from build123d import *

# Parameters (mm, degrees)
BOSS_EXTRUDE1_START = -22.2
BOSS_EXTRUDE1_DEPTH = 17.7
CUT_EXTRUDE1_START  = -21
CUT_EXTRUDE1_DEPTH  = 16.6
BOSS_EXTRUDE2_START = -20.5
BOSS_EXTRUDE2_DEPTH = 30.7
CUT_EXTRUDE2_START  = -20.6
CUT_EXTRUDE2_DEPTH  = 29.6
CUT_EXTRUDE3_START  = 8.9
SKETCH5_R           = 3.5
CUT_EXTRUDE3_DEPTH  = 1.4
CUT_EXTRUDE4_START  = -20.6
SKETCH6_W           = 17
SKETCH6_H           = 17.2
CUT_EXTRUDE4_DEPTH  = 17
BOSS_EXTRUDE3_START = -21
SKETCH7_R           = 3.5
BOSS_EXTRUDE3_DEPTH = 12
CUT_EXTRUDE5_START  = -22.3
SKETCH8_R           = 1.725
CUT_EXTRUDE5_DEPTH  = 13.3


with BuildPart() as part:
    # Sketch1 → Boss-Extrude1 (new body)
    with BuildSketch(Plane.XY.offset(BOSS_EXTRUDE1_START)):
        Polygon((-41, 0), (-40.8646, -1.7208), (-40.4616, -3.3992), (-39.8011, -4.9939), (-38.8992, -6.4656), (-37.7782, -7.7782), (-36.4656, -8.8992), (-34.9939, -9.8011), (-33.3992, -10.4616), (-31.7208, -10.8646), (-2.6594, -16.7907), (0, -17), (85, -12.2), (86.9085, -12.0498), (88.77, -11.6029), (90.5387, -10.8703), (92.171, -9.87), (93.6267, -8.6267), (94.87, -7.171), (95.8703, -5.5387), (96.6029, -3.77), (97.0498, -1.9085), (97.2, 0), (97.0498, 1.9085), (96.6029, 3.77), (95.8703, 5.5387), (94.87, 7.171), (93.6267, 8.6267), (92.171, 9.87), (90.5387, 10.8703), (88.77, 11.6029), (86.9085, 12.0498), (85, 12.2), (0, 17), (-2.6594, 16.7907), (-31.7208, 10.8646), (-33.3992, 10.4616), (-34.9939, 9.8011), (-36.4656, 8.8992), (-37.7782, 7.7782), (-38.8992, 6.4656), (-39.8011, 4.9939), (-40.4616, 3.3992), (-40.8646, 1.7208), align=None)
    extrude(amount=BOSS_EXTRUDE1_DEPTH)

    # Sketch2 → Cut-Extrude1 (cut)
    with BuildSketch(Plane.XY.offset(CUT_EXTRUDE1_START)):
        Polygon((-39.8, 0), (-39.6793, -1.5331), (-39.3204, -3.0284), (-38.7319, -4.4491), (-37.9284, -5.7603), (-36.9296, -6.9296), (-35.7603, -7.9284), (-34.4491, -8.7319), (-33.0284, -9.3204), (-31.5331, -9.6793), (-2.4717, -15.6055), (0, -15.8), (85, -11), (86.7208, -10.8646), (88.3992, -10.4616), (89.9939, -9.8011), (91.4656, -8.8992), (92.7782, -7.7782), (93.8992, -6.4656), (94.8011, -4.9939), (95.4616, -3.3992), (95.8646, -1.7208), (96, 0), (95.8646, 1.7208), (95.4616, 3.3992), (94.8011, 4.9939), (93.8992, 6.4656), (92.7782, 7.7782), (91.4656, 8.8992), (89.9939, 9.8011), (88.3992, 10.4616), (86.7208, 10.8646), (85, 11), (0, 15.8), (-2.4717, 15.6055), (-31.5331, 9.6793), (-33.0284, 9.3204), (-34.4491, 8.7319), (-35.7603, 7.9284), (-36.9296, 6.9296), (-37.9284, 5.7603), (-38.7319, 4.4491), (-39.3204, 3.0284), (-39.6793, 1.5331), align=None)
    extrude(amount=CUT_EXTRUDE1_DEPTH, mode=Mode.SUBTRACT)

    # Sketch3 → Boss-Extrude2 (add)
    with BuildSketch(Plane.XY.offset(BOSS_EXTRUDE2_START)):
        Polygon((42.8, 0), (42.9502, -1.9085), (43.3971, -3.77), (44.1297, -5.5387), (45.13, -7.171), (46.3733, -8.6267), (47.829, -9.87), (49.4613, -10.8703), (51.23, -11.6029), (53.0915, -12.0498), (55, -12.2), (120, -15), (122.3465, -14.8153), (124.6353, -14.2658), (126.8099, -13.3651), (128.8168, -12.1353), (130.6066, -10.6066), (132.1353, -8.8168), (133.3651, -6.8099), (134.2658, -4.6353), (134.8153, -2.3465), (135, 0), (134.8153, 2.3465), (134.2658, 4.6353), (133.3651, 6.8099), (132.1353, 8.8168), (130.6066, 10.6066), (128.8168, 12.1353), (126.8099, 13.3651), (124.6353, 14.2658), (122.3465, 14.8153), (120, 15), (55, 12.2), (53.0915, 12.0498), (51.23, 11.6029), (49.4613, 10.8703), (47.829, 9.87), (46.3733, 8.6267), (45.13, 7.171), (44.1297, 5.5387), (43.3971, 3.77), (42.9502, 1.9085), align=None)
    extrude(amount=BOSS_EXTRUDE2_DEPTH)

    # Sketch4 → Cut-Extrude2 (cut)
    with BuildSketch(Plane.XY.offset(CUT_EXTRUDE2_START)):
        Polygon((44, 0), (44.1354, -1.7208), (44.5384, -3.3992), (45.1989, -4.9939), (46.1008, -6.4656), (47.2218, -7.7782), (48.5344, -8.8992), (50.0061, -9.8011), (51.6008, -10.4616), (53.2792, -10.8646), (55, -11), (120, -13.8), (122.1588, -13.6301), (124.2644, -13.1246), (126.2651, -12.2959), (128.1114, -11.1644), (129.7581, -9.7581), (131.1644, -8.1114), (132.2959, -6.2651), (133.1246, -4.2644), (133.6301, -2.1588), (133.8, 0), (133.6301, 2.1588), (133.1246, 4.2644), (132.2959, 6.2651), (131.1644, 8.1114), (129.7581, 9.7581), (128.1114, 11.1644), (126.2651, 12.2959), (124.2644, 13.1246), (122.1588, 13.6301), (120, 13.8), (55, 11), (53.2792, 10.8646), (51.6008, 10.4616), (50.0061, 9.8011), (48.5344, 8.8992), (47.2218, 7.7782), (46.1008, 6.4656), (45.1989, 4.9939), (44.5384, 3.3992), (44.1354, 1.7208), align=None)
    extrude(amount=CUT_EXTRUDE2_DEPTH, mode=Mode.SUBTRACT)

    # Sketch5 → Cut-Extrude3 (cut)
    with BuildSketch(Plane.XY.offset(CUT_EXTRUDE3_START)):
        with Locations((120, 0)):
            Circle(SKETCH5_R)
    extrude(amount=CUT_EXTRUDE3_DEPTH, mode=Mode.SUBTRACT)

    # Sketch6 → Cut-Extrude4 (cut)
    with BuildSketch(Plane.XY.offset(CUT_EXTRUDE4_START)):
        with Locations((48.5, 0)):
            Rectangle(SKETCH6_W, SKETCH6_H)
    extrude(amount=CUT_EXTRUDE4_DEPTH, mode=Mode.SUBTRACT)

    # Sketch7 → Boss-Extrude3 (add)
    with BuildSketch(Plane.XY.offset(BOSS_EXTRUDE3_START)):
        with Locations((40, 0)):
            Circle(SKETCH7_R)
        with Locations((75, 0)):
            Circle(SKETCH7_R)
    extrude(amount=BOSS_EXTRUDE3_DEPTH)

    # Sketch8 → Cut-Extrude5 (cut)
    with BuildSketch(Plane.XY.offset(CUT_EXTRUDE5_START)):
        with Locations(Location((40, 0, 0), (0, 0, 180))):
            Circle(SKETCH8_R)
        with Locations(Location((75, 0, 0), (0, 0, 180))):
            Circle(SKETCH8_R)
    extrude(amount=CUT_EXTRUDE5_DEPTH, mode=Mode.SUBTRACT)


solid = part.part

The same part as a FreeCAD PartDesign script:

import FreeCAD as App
import Part
import Sketcher

V = App.Vector
Q = App.Units.Quantity


def add_polygon(sketch, points):
    """Adds a closed chain of lines whose ends are joined by coincident constraints."""
    first, n = sketch.GeometryCount, len(points)
    for a, b in zip(points, points[1:] + points[:1]):
        sketch.addGeometry(Part.LineSegment(App.Vector(*a, 0), App.Vector(*b, 0)), False)
    for i in range(n):
        sketch.addConstraint(Sketcher.Constraint("Coincident", first + i, 2, first + (i + 1) % n, 1))

doc = App.newDocument("Part")
params = doc.addObject("Spreadsheet::Sheet", "Params")
for row, (alias, value) in enumerate([
    ("pad1_length", "17.7 mm"),
    ("pocket1_length", "16.6 mm"),
    ("pad2_length", "30.7 mm"),
    ("pocket2_length", "29.6 mm"),
    ("sketch5_diameter", "7 mm"),
    ("pocket3_length", "1.4 mm"),
    ("sketch6_width", "17 mm"),
    ("sketch6_height", "17.2 mm"),
    ("pocket4_length", "17 mm"),
    ("sketch7_diameter", "7 mm"),
    ("pad3_length", "12 mm"),
    ("sketch8_diameter", "3.45 mm"),
    ("pocket5_length", "13.3 mm"),
], start=1):
    params.set(f"A{row}", alias)
    params.set(f"B{row}", "=" + value)
    params.setAlias(f"B{row}", alias)

body = doc.addObject("PartDesign::Body", "Body")

sketch1 = body.newObject("Sketcher::SketchObject", "Sketch")
sketch1.AttachmentSupport = (doc.getObject("XY_Plane"), [""])
sketch1.MapMode = "FlatFace"
sketch1.AttachmentOffset = App.Placement(V(0, 0, -22.2), App.Rotation())
add_polygon(sketch1, [(-41, 0), (-40.8646, -1.7208), (-40.4616, -3.3992), (-39.8011, -4.9939), (-38.8992, -6.4656), (-37.7782, -7.7782), (-36.4656, -8.8992), (-34.9939, -9.8011), (-33.3992, -10.4616), (-31.7208, -10.8646), (-2.6594, -16.7907), (0, -17), (85, -12.2), (86.9085, -12.0498), (88.77, -11.6029), (90.5387, -10.8703), (92.171, -9.87), (93.6267, -8.6267), (94.87, -7.171), (95.8703, -5.5387), (96.6029, -3.77), (97.0498, -1.9085), (97.2, 0), (97.0498, 1.9085), (96.6029, 3.77), (95.8703, 5.5387), (94.87, 7.171), (93.6267, 8.6267), (92.171, 9.87), (90.5387, 10.8703), (88.77, 11.6029), (86.9085, 12.0498), (85, 12.2), (0, 17), (-2.6594, 16.7907), (-31.7208, 10.8646), (-33.3992, 10.4616), (-34.9939, 9.8011), (-36.4656, 8.8992), (-37.7782, 7.7782), (-38.8992, 6.4656), (-39.8011, 4.9939), (-40.4616, 3.3992), (-40.8646, 1.7208)])
sketch1.addConstraint(Sketcher.Constraint("Symmetric", 10, 2, 32, 2, -1, 1))
sketch1.addConstraint(Sketcher.Constraint("Symmetric", 20, 2, 22, 2, -1))
sketch1.addConstraint(Sketcher.Constraint("Symmetric", 19, 2, 23, 2, -1))
sketch1.addConstraint(Sketcher.Constraint("Symmetric", 18, 2, 24, 2, -1))
sketch1.addConstraint(Sketcher.Constraint("Symmetric", 17, 2, 25, 2, -1))
sketch1.addConstraint(Sketcher.Constraint("Symmetric", 16, 2, 26, 2, -1))
sketch1.addConstraint(Sketcher.Constraint("Symmetric", 15, 2, 27, 2, -1))
sketch1.addConstraint(Sketcher.Constraint("Symmetric", 14, 2, 28, 2, -1))
sketch1.addConstraint(Sketcher.Constraint("Symmetric", 13, 2, 29, 2, -1))
sketch1.addConstraint(Sketcher.Constraint("Symmetric", 12, 2, 30, 2, -1))
sketch1.addConstraint(Sketcher.Constraint("Symmetric", 11, 2, 31, 2, -1))
sketch1.addConstraint(Sketcher.Constraint("Symmetric", 9, 2, 33, 2, -1))
sketch1.addConstraint(Sketcher.Constraint("Symmetric", 8, 2, 34, 2, -1))
sketch1.addConstraint(Sketcher.Constraint("Symmetric", 7, 2, 35, 2, -1))
sketch1.addConstraint(Sketcher.Constraint("Symmetric", 6, 2, 36, 2, -1))
sketch1.addConstraint(Sketcher.Constraint("Symmetric", 5, 2, 37, 2, -1))
sketch1.addConstraint(Sketcher.Constraint("Symmetric", 4, 2, 38, 2, -1))
sketch1.addConstraint(Sketcher.Constraint("Symmetric", 3, 2, 39, 2, -1))
sketch1.addConstraint(Sketcher.Constraint("Symmetric", 2, 2, 40, 2, -1))
sketch1.addConstraint(Sketcher.Constraint("Symmetric", 1, 2, 41, 2, -1))
sketch1.addConstraint(Sketcher.Constraint("Symmetric", 0, 2, 42, 2, -1))
sketch1.addConstraint(Sketcher.Constraint("PointOnObject", 10, 2, -2))
sketch1.addConstraint(Sketcher.Constraint("PointOnObject", 21, 2, -1))
sketch1.addConstraint(Sketcher.Constraint("PointOnObject", 43, 2, -1))
sketch1.addConstraint(Sketcher.Constraint("Perpendicular", 10, 21))
sketch1.addConstraint(Sketcher.Constraint("Perpendicular", 12, 22))
sketch1.addConstraint(Sketcher.Constraint("Perpendicular", 13, 23))
sketch1.addConstraint(Sketcher.Constraint("Perpendicular", 14, 24))
sketch1.addConstraint(Sketcher.Constraint("Perpendicular", 15, 25))
sketch1.addConstraint(Sketcher.Constraint("Perpendicular", 16, 26))
sketch1.addConstraint(Sketcher.Constraint("Perpendicular", 1, 35))
sketch1.addConstraint(Sketcher.Constraint("Perpendicular", 2, 36))
sketch1.addConstraint(Sketcher.Constraint("Perpendicular", 3, 37))
sketch1.addConstraint(Sketcher.Constraint("Perpendicular", 4, 38))
sketch1.addConstraint(Sketcher.Constraint("Equal", 2, 3))
sketch1.addConstraint(Sketcher.Constraint("Equal", 4, 5))
sketch1.addConstraint(Sketcher.Constraint("Equal", 3, 6))
sketch1.addConstraint(Sketcher.Constraint("Equal", 6, 7))
sketch1.addConstraint(Sketcher.Constraint("Equal", 1, 8))
sketch1.addConstraint(Sketcher.Constraint("Equal", 14, 15))
sketch1.addConstraint(Sketcher.Constraint("Equal", 16, 17))
sketch1.addConstraint(Sketcher.Constraint("Equal", 15, 18))
sketch1.addConstraint(Sketcher.Constraint("Equal", 18, 19))
sketch1.addConstraint(Sketcher.Constraint("Equal", 13, 20))
sketch1.addConstraint(Sketcher.Constraint("Equal", 12, 21))
sketch1.addConstraint(Sketcher.Constraint("DistanceY", 10, 2, -1, 1, Q("17 mm")))
sketch1.addConstraint(Sketcher.Constraint("DistanceX", -1, 1, 11, 2, Q("85 mm")))
sketch1.addConstraint(Sketcher.Constraint("DistanceX", 43, 2, -1, 1, Q("41 mm")))
sketch1.addConstraint(Sketcher.Constraint("Angle", 10, Q("-4.500015 deg")))
sketch1.addConstraint(Sketcher.Constraint("DistanceY", 11, 2, -1, 1, Q("12.2 mm")))
sketch1.addConstraint(Sketcher.Constraint("DistanceY", 5, 2, 1, 2, Q("5.5 mm")))
sketch1.addConstraint(Sketcher.Constraint("DistanceX", 13, 2, 17, 2, Q("6.1 mm")))
sketch1.addConstraint(Sketcher.Constraint("DistanceX", -1, 1, 13, 2, Q("88.77 mm")))
sketch1.addConstraint(Sketcher.Constraint("DistanceY", 0, 2, 37, 2, Q("10.62 mm")))
sketch1.addConstraint(Sketcher.Constraint("DistanceX", -1, 1, 15, 2, Q("92.171 mm")))
sketch1.addConstraint(Sketcher.Constraint("DistanceX", 0, 2, 1, 2, Q("0.403 mm")))
sketch1.addConstraint(Sketcher.Constraint("DistanceX", 3, 2, 4, 2, Q("1.121 mm")))
sketch1.addConstraint(Sketcher.Constraint("DistanceX", 1, 2, 5, 2, Q("3.996 mm")))
sketch1.addConstraint(Sketcher.Constraint("DistanceX", 14, 2, 16, 2, Q("3.088 mm")))
sketch1.addConstraint(Sketcher.Constraint("DistanceY", 20, 2, 22, 2, Q("3.817 mm")))
sketch1.addConstraint(Sketcher.Constraint("DistanceY", 2, 2, 36, 2, Q("14.795 mm")))
sketch1.addConstraint(Sketcher.Constraint("DistanceX", 0, 2, -1, 1, Q("40.8646 mm")))
sketch1.addConstraint(Sketcher.Constraint("DistanceY", 0, 2, -1, 1, Q("1.7208 mm")))
sketch1.addConstraint(Sketcher.Constraint("DistanceX", 2, 2, -1, 1, Q("39.8011 mm")))
sketch1.addConstraint(Sketcher.Constraint("DistanceX", 9, 2, -1, 1, Q("2.6594 mm")))
sketch1.addConstraint(Sketcher.Constraint("DistanceY", 13, 2, -1, 1, Q("11.6029 mm")))
sketch1.addConstraint(Sketcher.Constraint("DistanceX", -1, 1, 14, 2, Q("90.5387 mm")))
pad1 = body.newObject("PartDesign::Pad", "Pad")
pad1.Profile = sketch1
pad1.setExpression("Length", "Params.pad1_length")

sketch2 = body.newObject("Sketcher::SketchObject", "Sketch001")
sketch2.AttachmentSupport = (doc.getObject("XY_Plane"), [""])
sketch2.MapMode = "FlatFace"
sketch2.AttachmentOffset = App.Placement(V(0, 0, -21), App.Rotation())
add_polygon(sketch2, [(-39.8, 0), (-39.6793, -1.5331), (-39.3204, -3.0284), (-38.7319, -4.4491), (-37.9284, -5.7603), (-36.9296, -6.9296), (-35.7603, -7.9284), (-34.4491, -8.7319), (-33.0284, -9.3204), (-31.5331, -9.6793), (-2.4717, -15.6055), (0, -15.8), (85, -11), (86.7208, -10.8646), (88.3992, -10.4616), (89.9939, -9.8011), (91.4656, -8.8992), (92.7782, -7.7782), (93.8992, -6.4656), (94.8011, -4.9939), (95.4616, -3.3992), (95.8646, -1.7208), (96, 0), (95.8646, 1.7208), (95.4616, 3.3992), (94.8011, 4.9939), (93.8992, 6.4656), (92.7782, 7.7782), (91.4656, 8.8992), (89.9939, 9.8011), (88.3992, 10.4616), (86.7208, 10.8646), (85, 11), (0, 15.8), (-2.4717, 15.6055), (-31.5331, 9.6793), (-33.0284, 9.3204), (-34.4491, 8.7319), (-35.7603, 7.9284), (-36.9296, 6.9296), (-37.9284, 5.7603), (-38.7319, 4.4491), (-39.3204, 3.0284), (-39.6793, 1.5331)])
sketch2.addConstraint(Sketcher.Constraint("Symmetric", 10, 2, 32, 2, -1, 1))
sketch2.addConstraint(Sketcher.Constraint("Symmetric", 20, 2, 22, 2, -1))
sketch2.addConstraint(Sketcher.Constraint("Symmetric", 19, 2, 23, 2, -1))
sketch2.addConstraint(Sketcher.Constraint("Symmetric", 18, 2, 24, 2, -1))
sketch2.addConstraint(Sketcher.Constraint("Symmetric", 17, 2, 25, 2, -1))
sketch2.addConstraint(Sketcher.Constraint("Symmetric", 16, 2, 26, 2, -1))
sketch2.addConstraint(Sketcher.Constraint("Symmetric", 15, 2, 27, 2, -1))
sketch2.addConstraint(Sketcher.Constraint("Symmetric", 14, 2, 28, 2, -1))
sketch2.addConstraint(Sketcher.Constraint("Symmetric", 13, 2, 29, 2, -1))
sketch2.addConstraint(Sketcher.Constraint("Symmetric", 12, 2, 30, 2, -1))
sketch2.addConstraint(Sketcher.Constraint("Symmetric", 11, 2, 31, 2, -1))
sketch2.addConstraint(Sketcher.Constraint("Symmetric", 9, 2, 33, 2, -1))
sketch2.addConstraint(Sketcher.Constraint("Symmetric", 8, 2, 34, 2, -1))
sketch2.addConstraint(Sketcher.Constraint("Symmetric", 7, 2, 35, 2, -1))
sketch2.addConstraint(Sketcher.Constraint("Symmetric", 6, 2, 36, 2, -1))
sketch2.addConstraint(Sketcher.Constraint("Symmetric", 5, 2, 37, 2, -1))
sketch2.addConstraint(Sketcher.Constraint("Symmetric", 4, 2, 38, 2, -1))
sketch2.addConstraint(Sketcher.Constraint("Symmetric", 3, 2, 39, 2, -1))
sketch2.addConstraint(Sketcher.Constraint("Symmetric", 2, 2, 40, 2, -1))
sketch2.addConstraint(Sketcher.Constraint("Symmetric", 1, 2, 41, 2, -1))
sketch2.addConstraint(Sketcher.Constraint("Symmetric", 0, 2, 42, 2, -1))
sketch2.addConstraint(Sketcher.Constraint("PointOnObject", 10, 2, -2))
sketch2.addConstraint(Sketcher.Constraint("PointOnObject", 21, 2, -1))
sketch2.addConstraint(Sketcher.Constraint("PointOnObject", 43, 2, -1))
sketch2.addConstraint(Sketcher.Constraint("Perpendicular", 12, 22))
sketch2.addConstraint(Sketcher.Constraint("Perpendicular", 13, 23))
sketch2.addConstraint(Sketcher.Constraint("Perpendicular", 14, 24))
sketch2.addConstraint(Sketcher.Constraint("Perpendicular", 15, 25))
sketch2.addConstraint(Sketcher.Constraint("Perpendicular", 16, 26))
sketch2.addConstraint(Sketcher.Constraint("Perpendicular", 1, 35))
sketch2.addConstraint(Sketcher.Constraint("Perpendicular", 2, 36))
sketch2.addConstraint(Sketcher.Constraint("Perpendicular", 3, 37))
sketch2.addConstraint(Sketcher.Constraint("Perpendicular", 4, 38))
sketch2.addConstraint(Sketcher.Constraint("Equal", 4, 5))
sketch2.addConstraint(Sketcher.Constraint("Equal", 3, 6))
sketch2.addConstraint(Sketcher.Constraint("Equal", 2, 7))
sketch2.addConstraint(Sketcher.Constraint("Equal", 1, 8))
sketch2.addConstraint(Sketcher.Constraint("Equal", 14, 15))
sketch2.addConstraint(Sketcher.Constraint("Equal", 16, 17))
sketch2.addConstraint(Sketcher.Constraint("Equal", 15, 18))
sketch2.addConstraint(Sketcher.Constraint("Equal", 18, 19))
sketch2.addConstraint(Sketcher.Constraint("Equal", 13, 20))
sketch2.addConstraint(Sketcher.Constraint("Equal", 12, 21))
sketch2.addConstraint(Sketcher.Constraint("DistanceX", -1, 1, 11, 2, Q("85 mm")))
sketch2.addConstraint(Sketcher.Constraint("DistanceY", 11, 2, -1, 1, Q("11 mm")))
sketch2.addConstraint(Sketcher.Constraint("DistanceY", 10, 2, -1, 1, Q("15.8 mm")))
sketch2.addConstraint(Sketcher.Constraint("DistanceX", 43, 2, -1, 1, Q("39.8 mm")))
sketch2.addConstraint(Sketcher.Constraint("DistanceY", 5, 2, 1, 2, Q("4.9 mm")))
sketch2.addConstraint(Sketcher.Constraint("DistanceX", 13, 2, 17, 2, Q("5.5 mm")))
sketch2.addConstraint(Sketcher.Constraint("DistanceY", 19, 2, 22, 2, Q("5.12 mm")))
sketch2.addConstraint(Sketcher.Constraint("DistanceY", 2, 2, 0, 2, Q("2.916 mm")))
sketch2.addConstraint(Sketcher.Constraint("DistanceX", 1, 2, 3, 2, Q("1.392 mm")))
sketch2.addConstraint(Sketcher.Constraint("DistanceX", 0, 2, 5, 2, Q("3.919 mm")))
sketch2.addConstraint(Sketcher.Constraint("DistanceY", 12, 2, 13, 2, Q("0.403 mm")))
sketch2.addConstraint(Sketcher.Constraint("DistanceY", 15, 2, 16, 2, Q("1.121 mm")))
sketch2.addConstraint(Sketcher.Constraint("DistanceY", 13, 2, 17, 2, Q("3.996 mm")))
sketch2.addConstraint(Sketcher.Constraint("DistanceY", 9, 2, 33, 2, Q("31.211 mm")))
sketch2.addConstraint(Sketcher.Constraint("DistanceY", 0, 2, 36, 2, Q("10.265 mm")))
sketch2.addConstraint(Sketcher.Constraint("DistanceX", 0, 2, -1, 1, Q("39.6793 mm")))
sketch2.addConstraint(Sketcher.Constraint("DistanceY", 0, 2, -1, 1, Q("1.5331 mm")))
sketch2.addConstraint(Sketcher.Constraint("DistanceX", 1, 2, -1, 1, Q("39.3204 mm")))
sketch2.addConstraint(Sketcher.Constraint("DistanceY", 1, 2, -1, 1, Q("3.0284 mm")))
sketch2.addConstraint(Sketcher.Constraint("DistanceX", 4, 2, -1, 1, Q("36.9296 mm")))
sketch2.addConstraint(Sketcher.Constraint("DistanceX", 9, 2, -1, 1, Q("2.4717 mm")))
sketch2.addConstraint(Sketcher.Constraint("DistanceX", -1, 1, 12, 2, Q("86.7208 mm")))
sketch2.addConstraint(Sketcher.Constraint("DistanceY", 12, 2, -1, 1, Q("10.8646 mm")))
sketch2.addConstraint(Sketcher.Constraint("DistanceX", -1, 1, 14, 2, Q("89.9939 mm")))
pocket1 = body.newObject("PartDesign::Pocket", "Pocket")
pocket1.Profile = sketch2
pocket1.setExpression("Length", "Params.pocket1_length")
pocket1.Reversed = True

sketch3 = body.newObject("Sketcher::SketchObject", "Sketch002")
sketch3.AttachmentSupport = (doc.getObject("XY_Plane"), [""])
sketch3.MapMode = "FlatFace"
sketch3.AttachmentOffset = App.Placement(V(0, 0, -20.5), App.Rotation())
add_polygon(sketch3, [(42.8, 0), (42.9502, -1.9085), (43.3971, -3.77), (44.1297, -5.5387), (45.13, -7.171), (46.3733, -8.6267), (47.829, -9.87), (49.4613, -10.8703), (51.23, -11.6029), (53.0915, -12.0498), (55, -12.2), (120, -15), (122.3465, -14.8153), (124.6353, -14.2658), (126.8099, -13.3651), (128.8168, -12.1353), (130.6066, -10.6066), (132.1353, -8.8168), (133.3651, -6.8099), (134.2658, -4.6353), (134.8153, -2.3465), (135, 0), (134.8153, 2.3465), (134.2658, 4.6353), (133.3651, 6.8099), (132.1353, 8.8168), (130.6066, 10.6066), (128.8168, 12.1353), (126.8099, 13.3651), (124.6353, 14.2658), (122.3465, 14.8153), (120, 15), (55, 12.2), (53.0915, 12.0498), (51.23, 11.6029), (49.4613, 10.8703), (47.829, 9.87), (46.3733, 8.6267), (45.13, 7.171), (44.1297, 5.5387), (43.3971, 3.77), (42.9502, 1.9085)])
sketch3.addConstraint(Sketcher.Constraint("Symmetric", 19, 2, 21, 2, -1))
sketch3.addConstraint(Sketcher.Constraint("Symmetric", 18, 2, 22, 2, -1))
sketch3.addConstraint(Sketcher.Constraint("Symmetric", 17, 2, 23, 2, -1))
sketch3.addConstraint(Sketcher.Constraint("Symmetric", 16, 2, 24, 2, -1))
sketch3.addConstraint(Sketcher.Constraint("Symmetric", 15, 2, 25, 2, -1))
sketch3.addConstraint(Sketcher.Constraint("Symmetric", 14, 2, 26, 2, -1))
sketch3.addConstraint(Sketcher.Constraint("Symmetric", 13, 2, 27, 2, -1))
sketch3.addConstraint(Sketcher.Constraint("Symmetric", 12, 2, 28, 2, -1))
sketch3.addConstraint(Sketcher.Constraint("Symmetric", 11, 2, 29, 2, -1))
sketch3.addConstraint(Sketcher.Constraint("Symmetric", 10, 2, 30, 2, -1))
sketch3.addConstraint(Sketcher.Constraint("Symmetric", 9, 2, 31, 2, -1))
sketch3.addConstraint(Sketcher.Constraint("Symmetric", 8, 2, 32, 2, -1))
sketch3.addConstraint(Sketcher.Constraint("Symmetric", 7, 2, 33, 2, -1))
sketch3.addConstraint(Sketcher.Constraint("Symmetric", 6, 2, 34, 2, -1))
sketch3.addConstraint(Sketcher.Constraint("Symmetric", 5, 2, 35, 2, -1))
sketch3.addConstraint(Sketcher.Constraint("Symmetric", 4, 2, 36, 2, -1))
sketch3.addConstraint(Sketcher.Constraint("Symmetric", 3, 2, 37, 2, -1))
sketch3.addConstraint(Sketcher.Constraint("Symmetric", 2, 2, 38, 2, -1))
sketch3.addConstraint(Sketcher.Constraint("Symmetric", 1, 2, 39, 2, -1))
sketch3.addConstraint(Sketcher.Constraint("Symmetric", 0, 2, 40, 2, -1))
sketch3.addConstraint(Sketcher.Constraint("PointOnObject", 20, 2, -1))
sketch3.addConstraint(Sketcher.Constraint("PointOnObject", 41, 2, -1))
sketch3.addConstraint(Sketcher.Constraint("Perpendicular", 11, 21))
sketch3.addConstraint(Sketcher.Constraint("Perpendicular", 12, 22))
sketch3.addConstraint(Sketcher.Constraint("Perpendicular", 13, 23))
sketch3.addConstraint(Sketcher.Constraint("Perpendicular", 14, 24))
sketch3.addConstraint(Sketcher.Constraint("Perpendicular", 15, 25))
sketch3.addConstraint(Sketcher.Constraint("Perpendicular", 0, 32))
sketch3.addConstraint(Sketcher.Constraint("Perpendicular", 1, 33))
sketch3.addConstraint(Sketcher.Constraint("Perpendicular", 2, 34))
sketch3.addConstraint(Sketcher.Constraint("Perpendicular", 3, 35))
sketch3.addConstraint(Sketcher.Constraint("Perpendicular", 4, 36))
sketch3.addConstraint(Sketcher.Constraint("Equal", 2, 3))
sketch3.addConstraint(Sketcher.Constraint("Equal", 4, 5))
sketch3.addConstraint(Sketcher.Constraint("Equal", 3, 6))
sketch3.addConstraint(Sketcher.Constraint("Equal", 6, 7))
sketch3.addConstraint(Sketcher.Constraint("Equal", 1, 8))
sketch3.addConstraint(Sketcher.Constraint("Equal", 0, 9))
sketch3.addConstraint(Sketcher.Constraint("Equal", 15, 16))
sketch3.addConstraint(Sketcher.Constraint("Equal", 14, 17))
sketch3.addConstraint(Sketcher.Constraint("Equal", 13, 18))
sketch3.addConstraint(Sketcher.Constraint("Equal", 12, 19))
sketch3.addConstraint(Sketcher.Constraint("Equal", 11, 20))
sketch3.addConstraint(Sketcher.Constraint("DistanceX", -1, 1, 9, 2, Q("55 mm")))
sketch3.addConstraint(Sketcher.Constraint("DistanceX", -1, 1, 10, 2, Q("120 mm")))
sketch3.addConstraint(Sketcher.Constraint("DistanceY", 10, 2, -1, 1, Q("15 mm")))
sketch3.addConstraint(Sketcher.Constraint("DistanceY", 9, 2, -1, 1, Q("12.2 mm")))
sketch3.addConstraint(Sketcher.Constraint("DistanceY", 5, 2, 1, 2, Q("6.1 mm")))
sketch3.addConstraint(Sketcher.Constraint("DistanceX", 12, 2, 16, 2, Q("7.5 mm")))
sketch3.addConstraint(Sketcher.Constraint("DistanceY", 1, 2, -1, 1, Q("3.77 mm")))
sketch3.addConstraint(Sketcher.Constraint("DistanceY", 11, 2, 14, 2, Q("2.68 mm")))
sketch3.addConstraint(Sketcher.Constraint("DistanceY", 3, 2, -1, 1, Q("7.171 mm")))
sketch3.addConstraint(Sketcher.Constraint("DistanceY", 4, 2, 2, 2, Q("3.088 mm")))
sketch3.addConstraint(Sketcher.Constraint("DistanceX", 8, 2, 11, 2, Q("69.255 mm")))
sketch3.addConstraint(Sketcher.Constraint("DistanceY", 11, 2, 6, 2, Q("3.945 mm")))
sketch3.addConstraint(Sketcher.Constraint("DistanceY", 12, 2, 8, 2, Q("2.216 mm")))
sketch3.addConstraint(Sketcher.Constraint("DistanceY", 12, 2, 16, 2, Q("5.449 mm")))
sketch3.addConstraint(Sketcher.Constraint("DistanceY", 19, 2, 21, 2, Q("4.693 mm")))
sketch3.addConstraint(Sketcher.Constraint("Distance", 0, Q("1.914401 mm")))
sketch3.addConstraint(Sketcher.Constraint("DistanceX", -1, 1, 1, 2, Q("43.3971 mm")))
sketch3.addConstraint(Sketcher.Constraint("DistanceX", -1, 1, 2, 2, Q("44.1297 mm")))
sketch3.addConstraint(Sketcher.Constraint("DistanceX", -1, 1, 13, 2, Q("126.8099 mm")))
sketch3.addConstraint(Sketcher.Constraint("DistanceY", 13, 2, -1, 1, Q("13.3651 mm")))
sketch3.addConstraint(Sketcher.Constraint("DistanceX", -1, 1, 15, 2, Q("130.6066 mm")))
pad2 = body.newObject("PartDesign::Pad", "Pad001")
pad2.Profile = sketch3
pad2.setExpression("Length", "Params.pad2_length")

sketch4 = body.newObject("Sketcher::SketchObject", "Sketch003")
sketch4.AttachmentSupport = (doc.getObject("XY_Plane"), [""])
sketch4.MapMode = "FlatFace"
sketch4.AttachmentOffset = App.Placement(V(0, 0, -20.6), App.Rotation())
add_polygon(sketch4, [(44, 0), (44.1354, -1.7208), (44.5384, -3.3992), (45.1989, -4.9939), (46.1008, -6.4656), (47.2218, -7.7782), (48.5344, -8.8992), (50.0061, -9.8011), (51.6008, -10.4616), (53.2792, -10.8646), (55, -11), (120, -13.8), (122.1588, -13.6301), (124.2644, -13.1246), (126.2651, -12.2959), (128.1114, -11.1644), (129.7581, -9.7581), (131.1644, -8.1114), (132.2959, -6.2651), (133.1246, -4.2644), (133.6301, -2.1588), (133.8, 0), (133.6301, 2.1588), (133.1246, 4.2644), (132.2959, 6.2651), (131.1644, 8.1114), (129.7581, 9.7581), (128.1114, 11.1644), (126.2651, 12.2959), (124.2644, 13.1246), (122.1588, 13.6301), (120, 13.8), (55, 11), (53.2792, 10.8646), (51.6008, 10.4616), (50.0061, 9.8011), (48.5344, 8.8992), (47.2218, 7.7782), (46.1008, 6.4656), (45.1989, 4.9939), (44.5384, 3.3992), (44.1354, 1.7208)])
sketch4.addConstraint(Sketcher.Constraint("Symmetric", 19, 2, 21, 2, -1))
sketch4.addConstraint(Sketcher.Constraint("Symmetric", 18, 2, 22, 2, -1))
sketch4.addConstraint(Sketcher.Constraint("Symmetric", 17, 2, 23, 2, -1))
sketch4.addConstraint(Sketcher.Constraint("Symmetric", 16, 2, 24, 2, -1))
sketch4.addConstraint(Sketcher.Constraint("Symmetric", 15, 2, 25, 2, -1))
sketch4.addConstraint(Sketcher.Constraint("Symmetric", 14, 2, 26, 2, -1))
sketch4.addConstraint(Sketcher.Constraint("Symmetric", 13, 2, 27, 2, -1))
sketch4.addConstraint(Sketcher.Constraint("Symmetric", 12, 2, 28, 2, -1))
sketch4.addConstraint(Sketcher.Constraint("Symmetric", 11, 2, 29, 2, -1))
sketch4.addConstraint(Sketcher.Constraint("Symmetric", 10, 2, 30, 2, -1))
sketch4.addConstraint(Sketcher.Constraint("Symmetric", 9, 2, 31, 2, -1))
sketch4.addConstraint(Sketcher.Constraint("Symmetric", 8, 2, 32, 2, -1))
sketch4.addConstraint(Sketcher.Constraint("Symmetric", 7, 2, 33, 2, -1))
sketch4.addConstraint(Sketcher.Constraint("Symmetric", 6, 2, 34, 2, -1))
sketch4.addConstraint(Sketcher.Constraint("Symmetric", 5, 2, 35, 2, -1))
sketch4.addConstraint(Sketcher.Constraint("Symmetric", 4, 2, 36, 2, -1))
sketch4.addConstraint(Sketcher.Constraint("Symmetric", 3, 2, 37, 2, -1))
sketch4.addConstraint(Sketcher.Constraint("Symmetric", 2, 2, 38, 2, -1))
sketch4.addConstraint(Sketcher.Constraint("Symmetric", 1, 2, 39, 2, -1))
sketch4.addConstraint(Sketcher.Constraint("Symmetric", 0, 2, 40, 2, -1))
sketch4.addConstraint(Sketcher.Constraint("PointOnObject", 20, 2, -1))
sketch4.addConstraint(Sketcher.Constraint("PointOnObject", 41, 2, -1))
sketch4.addConstraint(Sketcher.Constraint("Perpendicular", 11, 21))
sketch4.addConstraint(Sketcher.Constraint("Perpendicular", 12, 22))
sketch4.addConstraint(Sketcher.Constraint("Perpendicular", 13, 23))
sketch4.addConstraint(Sketcher.Constraint("Perpendicular", 14, 24))
sketch4.addConstraint(Sketcher.Constraint("Perpendicular", 15, 25))
sketch4.addConstraint(Sketcher.Constraint("Perpendicular", 0, 32))
sketch4.addConstraint(Sketcher.Constraint("Perpendicular", 1, 33))
sketch4.addConstraint(Sketcher.Constraint("Perpendicular", 2, 34))
sketch4.addConstraint(Sketcher.Constraint("Perpendicular", 3, 35))
sketch4.addConstraint(Sketcher.Constraint("Perpendicular", 4, 36))
sketch4.addConstraint(Sketcher.Constraint("Equal", 2, 3))
sketch4.addConstraint(Sketcher.Constraint("Equal", 4, 5))
sketch4.addConstraint(Sketcher.Constraint("Equal", 3, 6))
sketch4.addConstraint(Sketcher.Constraint("Equal", 6, 7))
sketch4.addConstraint(Sketcher.Constraint("Equal", 1, 8))
sketch4.addConstraint(Sketcher.Constraint("Equal", 0, 9))
sketch4.addConstraint(Sketcher.Constraint("Equal", 15, 16))
sketch4.addConstraint(Sketcher.Constraint("Equal", 14, 17))
sketch4.addConstraint(Sketcher.Constraint("Equal", 13, 18))
sketch4.addConstraint(Sketcher.Constraint("Equal", 12, 19))
sketch4.addConstraint(Sketcher.Constraint("Equal", 11, 20))
sketch4.addConstraint(Sketcher.Constraint("DistanceX", -1, 1, 9, 2, Q("55 mm")))
sketch4.addConstraint(Sketcher.Constraint("DistanceY", 9, 2, -1, 1, Q("11 mm")))
sketch4.addConstraint(Sketcher.Constraint("DistanceX", -1, 1, 10, 2, Q("120 mm")))
sketch4.addConstraint(Sketcher.Constraint("DistanceY", 10, 2, -1, 1, Q("13.8 mm")))
sketch4.addConstraint(Sketcher.Constraint("DistanceY", 5, 2, 1, 2, Q("5.5 mm")))
sketch4.addConstraint(Sketcher.Constraint("DistanceX", 12, 2, 16, 2, Q("6.9 mm")))
sketch4.addConstraint(Sketcher.Constraint("DistanceY", 12, 2, 8, 2, Q("2.26 mm")))
sketch4.addConstraint(Sketcher.Constraint("DistanceY", 0, 2, 35, 2, Q("10.62 mm")))
sketch4.addConstraint(Sketcher.Constraint("DistanceX", 0, 2, 1, 2, Q("0.403 mm")))
sketch4.addConstraint(Sketcher.Constraint("DistanceX", 3, 2, 4, 2, Q("1.121 mm")))
sketch4.addConstraint(Sketcher.Constraint("DistanceX", 1, 2, 5, 2, Q("3.996 mm")))
sketch4.addConstraint(Sketcher.Constraint("DistanceX", 7, 2, 11, 2, Q("70.558 mm")))
sketch4.addConstraint(Sketcher.Constraint("DistanceY", 11, 2, 6, 2, Q("3.829 mm")))
sketch4.addConstraint(Sketcher.Constraint("DistanceX", 12, 2, 14, 2, Q("3.847 mm")))
sketch4.addConstraint(Sketcher.Constraint("DistanceX", 13, 2, 15, 2, Q("3.493 mm")))
sketch4.addConstraint(Sketcher.Constraint("DistanceY", 11, 2, 15, 2, Q("3.872 mm")))
sketch4.addConstraint(Sketcher.Constraint("DistanceX", -1, 1, 0, 2, Q("44.1354 mm")))
sketch4.addConstraint(Sketcher.Constraint("DistanceY", 0, 2, -1, 1, Q("1.7208 mm")))
sketch4.addConstraint(Sketcher.Constraint("DistanceX", -1, 1, 2, 2, Q("45.1989 mm")))
sketch4.addConstraint(Sketcher.Constraint("DistanceX", -1, 1, 12, 2, Q("124.2644 mm")))
sketch4.addConstraint(Sketcher.Constraint("DistanceY", 13, 2, -1, 1, Q("12.2959 mm")))
pocket2 = body.newObject("PartDesign::Pocket", "Pocket001")
pocket2.Profile = sketch4
pocket2.setExpression("Length", "Params.pocket2_length")
pocket2.Reversed = True

sketch5 = body.newObject("Sketcher::SketchObject", "Sketch004")
sketch5.AttachmentSupport = (doc.getObject("XY_Plane"), [""])
sketch5.MapMode = "FlatFace"
sketch5.AttachmentOffset = App.Placement(V(0, 0, 8.9), App.Rotation())
sketch5.addGeometry(Part.Circle(V(120, 0, 0), V(0, 0, 1), 3.5), False)
sketch5.addConstraint(Sketcher.Constraint("PointOnObject", 0, 3, -1))
sketch5.addConstraint(Sketcher.Constraint("Diameter", 0, Q("7 mm")))
sketch5.addConstraint(Sketcher.Constraint("DistanceX", -1, 1, 0, 3, Q("120 mm")))
sketch5.setExpression("Constraints[1]", "Params.sketch5_diameter")
pocket3 = body.newObject("PartDesign::Pocket", "Pocket002")
pocket3.Profile = sketch5
pocket3.setExpression("Length", "Params.pocket3_length")
pocket3.Reversed = True

sketch6 = body.newObject("Sketcher::SketchObject", "Sketch005")
sketch6.AttachmentSupport = (doc.getObject("XY_Plane"), [""])
sketch6.MapMode = "FlatFace"
sketch6.AttachmentOffset = App.Placement(V(0, 0, -20.6), App.Rotation())
add_polygon(sketch6, [(40, 8.6), (40, -8.6), (57, -8.6), (57, 8.6)])
sketch6.addConstraint(Sketcher.Constraint("Vertical", 0))
sketch6.addConstraint(Sketcher.Constraint("Horizontal", 1))
sketch6.addConstraint(Sketcher.Constraint("Vertical", 2))
sketch6.addConstraint(Sketcher.Constraint("Horizontal", 3))
sketch6.addConstraint(Sketcher.Constraint("DistanceX", 1, 1, 1, 2, Q("17 mm")))
sketch6.addConstraint(Sketcher.Constraint("DistanceY", 0, 2, 0, 1, Q("17.2 mm")))
sketch6.addConstraint(Sketcher.Constraint("DistanceX", -1, 1, 0, 2, Q("40 mm")))
sketch6.addConstraint(Sketcher.Constraint("DistanceY", 0, 2, -1, 1, Q("8.6 mm")))
sketch6.setExpression("Constraints[8]", "Params.sketch6_width")
sketch6.setExpression("Constraints[9]", "Params.sketch6_height")
pocket4 = body.newObject("PartDesign::Pocket", "Pocket003")
pocket4.Profile = sketch6
pocket4.setExpression("Length", "Params.pocket4_length")
pocket4.Reversed = True

sketch7 = body.newObject("Sketcher::SketchObject", "Sketch006")
sketch7.AttachmentSupport = (doc.getObject("XY_Plane"), [""])
sketch7.MapMode = "FlatFace"
sketch7.AttachmentOffset = App.Placement(V(0, 0, -21), App.Rotation())
sketch7.addGeometry(Part.Circle(V(40, 0, 0), V(0, 0, 1), 3.5), False)
sketch7.addGeometry(Part.Circle(V(75, 0, 0), V(0, 0, 1), 3.5), False)
sketch7.addConstraint(Sketcher.Constraint("Equal", 0, 1))
sketch7.addConstraint(Sketcher.Constraint("PointOnObject", 0, 3, -1))
sketch7.addConstraint(Sketcher.Constraint("PointOnObject", 1, 3, -1))
sketch7.addConstraint(Sketcher.Constraint("Diameter", 0, Q("7 mm")))
sketch7.addConstraint(Sketcher.Constraint("DistanceX", -1, 1, 0, 3, Q("40 mm")))
sketch7.addConstraint(Sketcher.Constraint("DistanceX", -1, 1, 1, 3, Q("75 mm")))
sketch7.setExpression("Constraints[3]", "Params.sketch7_diameter")
pad3 = body.newObject("PartDesign::Pad", "Pad002")
pad3.Profile = sketch7
pad3.setExpression("Length", "Params.pad3_length")

sketch8 = body.newObject("Sketcher::SketchObject", "Sketch007")
sketch8.AttachmentSupport = (doc.getObject("XY_Plane"), [""])
sketch8.MapMode = "FlatFace"
sketch8.AttachmentOffset = App.Placement(V(0, 0, -22.3), App.Rotation())
sketch8.addGeometry(Part.Circle(V(40, 0, 0), V(0, 0, 1), 1.725), False)
sketch8.addGeometry(Part.Circle(V(75, 0, 0), V(0, 0, 1), 1.725), False)
sketch8.addConstraint(Sketcher.Constraint("Equal", 0, 1))
sketch8.addConstraint(Sketcher.Constraint("PointOnObject", 0, 3, -1))
sketch8.addConstraint(Sketcher.Constraint("PointOnObject", 1, 3, -1))
sketch8.addConstraint(Sketcher.Constraint("Diameter", 0, Q("3.45 mm")))
sketch8.addConstraint(Sketcher.Constraint("DistanceX", -1, 1, 0, 3, Q("40 mm")))
sketch8.addConstraint(Sketcher.Constraint("DistanceX", -1, 1, 1, 3, Q("75 mm")))
sketch8.setExpression("Constraints[3]", "Params.sketch8_diameter")
pocket5 = body.newObject("PartDesign::Pocket", "Pocket004")
pocket5.Profile = sketch8
pocket5.setExpression("Length", "Params.pocket5_length")
pocket5.Reversed = True

doc.recompute()
